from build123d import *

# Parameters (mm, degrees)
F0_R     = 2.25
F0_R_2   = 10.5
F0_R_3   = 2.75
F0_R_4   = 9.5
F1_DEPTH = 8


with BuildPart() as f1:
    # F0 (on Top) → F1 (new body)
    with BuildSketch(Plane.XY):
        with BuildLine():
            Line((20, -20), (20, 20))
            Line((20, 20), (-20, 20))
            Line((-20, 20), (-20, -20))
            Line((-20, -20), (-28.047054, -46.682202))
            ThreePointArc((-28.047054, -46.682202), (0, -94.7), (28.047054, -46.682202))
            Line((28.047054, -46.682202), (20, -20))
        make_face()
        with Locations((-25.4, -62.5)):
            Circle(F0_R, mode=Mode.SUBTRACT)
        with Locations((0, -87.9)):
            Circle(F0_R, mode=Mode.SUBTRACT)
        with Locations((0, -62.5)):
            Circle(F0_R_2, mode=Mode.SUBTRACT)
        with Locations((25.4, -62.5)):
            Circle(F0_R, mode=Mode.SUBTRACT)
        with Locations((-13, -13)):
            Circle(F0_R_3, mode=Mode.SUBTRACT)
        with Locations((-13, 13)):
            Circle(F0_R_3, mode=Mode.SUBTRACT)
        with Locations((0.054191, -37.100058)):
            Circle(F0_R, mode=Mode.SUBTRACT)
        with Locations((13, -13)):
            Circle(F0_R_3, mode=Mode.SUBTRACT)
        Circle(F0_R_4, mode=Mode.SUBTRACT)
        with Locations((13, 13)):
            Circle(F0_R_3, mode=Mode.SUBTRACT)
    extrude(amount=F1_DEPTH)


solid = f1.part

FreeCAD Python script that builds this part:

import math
import FreeCAD as App
import Part
import Sketcher

V = App.Vector
Q = App.Units.Quantity

doc = App.newDocument("Part")
body = doc.addObject("PartDesign::Body", "Body")

# Sketch on XY plane
sketch1 = doc.addObject("Sketcher::SketchObject", "Sketch")
body.addObject(sketch1)
sketch1.AttachmentSupport = (doc.XY_Plane, [""])
sketch1.MapMode = "FlatFace"
sketch1.addGeometry(Part.LineSegment(V(20, -20, 0), V(20, 20, 0)), False)
sketch1.addGeometry(Part.LineSegment(V(20, 20, 0), V(-20, 20, 0)), False)
sketch1.addGeometry(Part.LineSegment(V(-20, 20, 0), V(-20, -20, 0)), False)
sketch1.addGeometry(Part.LineSegment(V(-20, -20, 0), V(-28.047054, -46.682202, 0)), False)
sketch1.addGeometry(Part.ArcOfCircle(Part.Circle(V(0, -62.5, 0), V(0, 0, 1), 32.2), math.radians(150.578149), math.radians(389.421851)), False)
sketch1.addGeometry(Part.LineSegment(V(28.047054, -46.682202, 0), V(20, -20, 0)), False)
sketch1.addGeometry(Part.Circle(V(-25.4, -62.5, 0), V(0, 0, 1), 2.25), False)
sketch1.addGeometry(Part.Circle(V(0, -87.9, 0), V(0, 0, 1), 2.25), False)
sketch1.addGeometry(Part.Circle(V(0, -62.5, 0), V(0, 0, 1), 10.5), False)
sketch1.addGeometry(Part.Circle(V(25.4, -62.5, 0), V(0, 0, 1), 2.25), False)
sketch1.addGeometry(Part.Circle(V(-13, -13, 0), V(0, 0, 1), 2.75), False)
sketch1.addGeometry(Part.Circle(V(-13, 13, 0), V(0, 0, 1), 2.75), False)
sketch1.addGeometry(Part.Circle(V(0.054191, -37.100058, 0), V(0, 0, 1), 2.25), False)
sketch1.addGeometry(Part.Circle(V(13, -13, 0), V(0, 0, 1), 2.75), False)
sketch1.addGeometry(Part.Circle(V(0, 0, 0), V(0, 0, 1), 9.5), False)
sketch1.addGeometry(Part.Circle(V(13, 13, 0), V(0, 0, 1), 2.75), False)
sketch1.addConstraint(Sketcher.Constraint("Coincident", 0, 2, 1, 1))
sketch1.addConstraint(Sketcher.Constraint("Coincident", 1, 2, 2, 1))
sketch1.addConstraint(Sketcher.Constraint("Coincident", 2, 2, 3, 1))
sketch1.addConstraint(Sketcher.Constraint("Coincident", 3, 2, 4, 1))
sketch1.addConstraint(Sketcher.Constraint("Coincident", 4, 2, 5, 1))
sketch1.addConstraint(Sketcher.Constraint("Coincident", 5, 2, 0, 1))
sketch1.addConstraint(Sketcher.Constraint("Vertical", 0))
sketch1.addConstraint(Sketcher.Constraint("Horizontal", 1))
sketch1.addConstraint(Sketcher.Constraint("Vertical", 2))
sketch1.addConstraint(Sketcher.Constraint("Coincident", 14, 3, -1, 1))
sketch1.addConstraint(Sketcher.Constraint("Coincident", 8, 3, 4, 3))
sketch1.addConstraint(Sketcher.Constraint("Equal", 6, 7))
sketch1.addConstraint(Sketcher.Constraint("Equal", 7, 9))
sketch1.addConstraint(Sketcher.Constraint("Equal", 10, 11))
sketch1.addConstraint(Sketcher.Constraint("Equal", 9, 12))
sketch1.addConstraint(Sketcher.Constraint("Equal", 11, 13))
sketch1.addConstraint(Sketcher.Constraint("Equal", 13, 15))
sketch1.addConstraint(Sketcher.Constraint("Symmetric", 11, 3, 13, 3, -1, 1))
sketch1.addConstraint(Sketcher.Constraint("Symmetric", 10, 3, 15, 3, -1, 1))
sketch1.addConstraint(Sketcher.Constraint("Symmetric", 0, 2, 2, 2, -1, 1))
sketch1.addConstraint(Sketcher.Constraint("Symmetric", 6, 3, 9, 3, -2))
sketch1.addConstraint(Sketcher.Constraint("Symmetric", 10, 3, 13, 3, -2))
sketch1.addConstraint(Sketcher.Constraint("Symmetric", 3, 2, 4, 2, -2))
sketch1.addConstraint(Sketcher.Constraint("PointOnObject", 7, 3, -2))
sketch1.addConstraint(Sketcher.Constraint("Horizontal", 4, 3, 6, 3))
sketch1.addConstraint(Sketcher.Constraint("Horizontal", 2, 2, 5, 2))
sketch1.addConstraint(Sketcher.Constraint("Equal", 1, 0))
sketch1.addConstraint(Sketcher.Constraint("Diameter", 8, Q("21 mm")))
sketch1.addConstraint(Sketcher.Constraint("Diameter", 14, Q("19 mm")))
sketch1.addConstraint(Sketcher.Constraint("Diameter", 6, Q("4.5 mm")))
sketch1.addConstraint(Sketcher.Constraint("Diameter", 10, Q("5.5 mm")))
sketch1.addConstraint(Sketcher.Constraint("Radius", 4, Q("32.2 mm")))
sketch1.addConstraint(Sketcher.Constraint("DistanceX", 1, 2, 1, 1, Q("40 mm")))
sketch1.addConstraint(Sketcher.Constraint("DistanceX", 10, 3, -1, 1, Q("13 mm")))
sketch1.addConstraint(Sketcher.Constraint("DistanceY", 10, 3, -1, 1, Q("13 mm")))
sketch1.addConstraint(Sketcher.Constraint("DistanceY", 4, 3, -1, 1, Q("62.5 mm")))
sketch1.addConstraint(Sketcher.Constraint("DistanceX", 6, 3, -1, 1, Q("25.4 mm")))
sketch1.addConstraint(Sketcher.Constraint("DistanceY", 7, 3, -1, 1, Q("87.9 mm")))
sketch1.addConstraint(Sketcher.Constraint("DistanceY", 3, 2, -1, 1, Q("46.682202 mm")))
sketch1.addConstraint(Sketcher.Constraint("DistanceX", -1, 1, 12, 3, Q("0.054191 mm")))
sketch1.addConstraint(Sketcher.Constraint("DistanceY", 12, 3, -1, 1, Q("37.100058 mm")))
pad1 = doc.addObject("PartDesign::Pad", "Pad")
body.addObject(pad1)
pad1.Profile = sketch1
pad1.Length = 8

doc.recompute()
